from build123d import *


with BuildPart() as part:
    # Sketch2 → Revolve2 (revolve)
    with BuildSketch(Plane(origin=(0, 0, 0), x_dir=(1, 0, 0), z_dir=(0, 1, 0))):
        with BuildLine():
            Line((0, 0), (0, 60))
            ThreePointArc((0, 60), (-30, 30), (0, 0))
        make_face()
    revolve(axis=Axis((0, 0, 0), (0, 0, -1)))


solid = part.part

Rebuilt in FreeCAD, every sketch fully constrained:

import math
import FreeCAD as App
import Part
import Sketcher
from FreeCAD import Vector

doc = App.newDocument("Part")
body = doc.addObject("PartDesign::Body", "Body")

# Sketch on XZ plane
sketch1 = body.newObject("Sketcher::SketchObject", "Sketch")
sketch1.AttachmentSupport = (doc.getObject("XZ_Plane"), [""])
sketch1.MapMode = "FlatFace"
sketch1.addGeometry([
    Part.LineSegment(Vector(0, 0, 0), Vector(0, -60, 0)),
    Part.ArcOfCircle(Part.Circle(Vector(0, -30, 0), Vector(0, 0, 1), 30), math.radians(90), math.radians(270)),
], False)
sketch1.addConstraint([
    Sketcher.Constraint("Coincident", 0, 1, 1, 1),
    Sketcher.Constraint("Coincident", 1, 2, 0, 2),
    Sketcher.Constraint("Vertical", 0),
    Sketcher.Constraint("Coincident", 0, 1, -1, 1),
    Sketcher.Constraint("PointOnObject", 1, 3, -2),
    Sketcher.Constraint("Radius", 1, 30.0),
])
revolution = body.newObject("PartDesign::Revolution", "Revolution")
revolution.Profile = sketch1
revolution.ReferenceAxis = (sketch1, ["V_Axis"])
revolution.Angle = 360

doc.recompute()
